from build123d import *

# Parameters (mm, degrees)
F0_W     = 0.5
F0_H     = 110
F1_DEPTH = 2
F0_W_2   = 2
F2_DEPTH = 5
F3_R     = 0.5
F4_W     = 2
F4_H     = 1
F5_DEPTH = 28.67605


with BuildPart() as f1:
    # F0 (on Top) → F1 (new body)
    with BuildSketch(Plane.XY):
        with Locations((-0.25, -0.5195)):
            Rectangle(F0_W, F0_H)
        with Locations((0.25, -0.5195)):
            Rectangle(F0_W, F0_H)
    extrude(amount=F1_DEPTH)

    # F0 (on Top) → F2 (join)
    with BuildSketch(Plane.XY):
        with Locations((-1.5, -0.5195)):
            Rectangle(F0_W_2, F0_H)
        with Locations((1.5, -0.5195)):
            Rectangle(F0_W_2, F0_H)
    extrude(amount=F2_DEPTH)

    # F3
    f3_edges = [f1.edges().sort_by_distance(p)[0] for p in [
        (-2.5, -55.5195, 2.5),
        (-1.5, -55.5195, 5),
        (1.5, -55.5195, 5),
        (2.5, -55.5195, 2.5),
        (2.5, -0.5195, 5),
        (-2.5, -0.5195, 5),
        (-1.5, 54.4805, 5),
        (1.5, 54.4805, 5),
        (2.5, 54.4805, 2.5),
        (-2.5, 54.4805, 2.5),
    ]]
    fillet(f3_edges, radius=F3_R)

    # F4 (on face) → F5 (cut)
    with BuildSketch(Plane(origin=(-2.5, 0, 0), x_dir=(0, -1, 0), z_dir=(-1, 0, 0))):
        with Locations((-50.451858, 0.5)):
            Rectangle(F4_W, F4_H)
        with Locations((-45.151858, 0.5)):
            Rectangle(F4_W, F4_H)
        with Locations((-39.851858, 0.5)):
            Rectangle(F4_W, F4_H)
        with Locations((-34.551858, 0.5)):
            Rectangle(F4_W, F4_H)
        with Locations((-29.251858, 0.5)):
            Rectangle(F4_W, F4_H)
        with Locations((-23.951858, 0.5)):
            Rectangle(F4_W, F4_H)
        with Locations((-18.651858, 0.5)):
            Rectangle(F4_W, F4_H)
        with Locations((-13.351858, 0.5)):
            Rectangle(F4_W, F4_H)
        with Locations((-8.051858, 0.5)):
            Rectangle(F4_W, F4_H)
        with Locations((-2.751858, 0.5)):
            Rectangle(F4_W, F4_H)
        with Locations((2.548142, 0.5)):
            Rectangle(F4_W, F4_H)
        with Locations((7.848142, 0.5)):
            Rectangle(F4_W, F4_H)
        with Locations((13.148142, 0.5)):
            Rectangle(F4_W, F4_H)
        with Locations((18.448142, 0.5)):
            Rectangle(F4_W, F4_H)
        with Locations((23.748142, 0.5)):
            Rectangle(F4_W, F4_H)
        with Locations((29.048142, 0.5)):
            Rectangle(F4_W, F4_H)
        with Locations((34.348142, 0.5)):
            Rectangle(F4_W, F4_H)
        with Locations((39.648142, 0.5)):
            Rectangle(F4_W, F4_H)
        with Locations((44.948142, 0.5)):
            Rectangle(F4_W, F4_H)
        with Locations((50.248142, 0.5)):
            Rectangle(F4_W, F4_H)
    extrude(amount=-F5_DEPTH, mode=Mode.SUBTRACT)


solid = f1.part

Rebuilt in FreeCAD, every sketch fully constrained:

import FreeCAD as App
import Part
import Sketcher
from FreeCAD import Vector


def edges_at(feature, points):
    """Names of the edges that pass closest to the given points."""
    edges = feature.Shape.Edges
    near = lambda p: min(range(len(edges)), key=lambda i: edges[i].distToShape(Part.Vertex(*p))[0])
    return sorted({f"Edge{near(p) + 1}" for p in points})

doc = App.newDocument("Part")
body = doc.addObject("PartDesign::Body", "Body")

# Sketch on XY plane
sketch1 = doc.addObject("Sketcher::SketchObject", "Sketch")
body.addObject(sketch1)
sketch1.AttachmentSupport = (doc.XY_Plane, [""])
sketch1.MapMode = "FlatFace"
sketch1.addGeometry([
    Part.LineSegment(Vector(-0.5, 54.5, 0), Vector(-0.5, -55.5, 0)),
    Part.LineSegment(Vector(-0.5, -55.5, 0), Vector(0.5, -55.5, 0)),
    Part.LineSegment(Vector(0.5, -55.5, 0), Vector(0.5, 54.5, 0)),
    Part.LineSegment(Vector(0.5, 54.5, 0), Vector(-0.5, 54.5, 0)),
], False)
sketch1.addConstraint([
    Sketcher.Constraint("Coincident", 0, 2, 1, 1),
    Sketcher.Constraint("Coincident", 1, 2, 2, 1),
    Sketcher.Constraint("Coincident", 2, 2, 3, 1),
    Sketcher.Constraint("Coincident", 3, 2, 0, 1),
    Sketcher.Constraint("Vertical", 0),
    Sketcher.Constraint("Horizontal", 1),
    Sketcher.Constraint("Vertical", 2),
    Sketcher.Constraint("Horizontal", 3),
    Sketcher.Constraint("DistanceX", 1, 1, 1, 2, 1.0),
    Sketcher.Constraint("DistanceY", 0, 2, 0, 1, 110.0),
    Sketcher.Constraint("DistanceX", 0, 2, -1, 1, 0.5),
    Sketcher.Constraint("DistanceY", 0, 2, -1, 1, 55.5195),
])
pad1 = doc.addObject("PartDesign::Pad", "Pad")
body.addObject(pad1)
pad1.Profile = sketch1
pad1.Length = 2

# Sketch on XY plane
sketch2 = doc.addObject("Sketcher::SketchObject", "Sketch001")
body.addObject(sketch2)
sketch2.AttachmentSupport = (doc.XY_Plane, [""])
sketch2.MapMode = "FlatFace"
sketch2.addGeometry([
    Part.LineSegment(Vector(-2.5, 54.5, 0), Vector(-2.5, -55.5, 0)),  # 0
    Part.LineSegment(Vector(-2.5, -55.5, 0), Vector(-0.5, -55.5, 0)),  # 1
    Part.LineSegment(Vector(-0.5, -55.5, 0), Vector(-0.5, 54.5, 0)),  # 2
    Part.LineSegment(Vector(-0.5, 54.5, 0), Vector(-2.5, 54.5, 0)),  # 3
    Part.LineSegment(Vector(0.5, 54.5, 0), Vector(0.5, -55.5, 0)),  # 4
    Part.LineSegment(Vector(0.5, -55.5, 0), Vector(2.5, -55.5, 0)),  # 5
    Part.LineSegment(Vector(2.5, -55.5, 0), Vector(2.5, 54.5, 0)),  # 6
    Part.LineSegment(Vector(2.5, 54.5, 0), Vector(0.5, 54.5, 0)),  # 7
], False)
sketch2.addConstraint([
    Sketcher.Constraint("Coincident", 0, 2, 1, 1),
    Sketcher.Constraint("Coincident", 1, 2, 2, 1),
    Sketcher.Constraint("Coincident", 2, 2, 3, 1),
    Sketcher.Constraint("Coincident", 3, 2, 0, 1),
    Sketcher.Constraint("Coincident", 4, 2, 5, 1),
    Sketcher.Constraint("Coincident", 5, 2, 6, 1),
    Sketcher.Constraint("Coincident", 6, 2, 7, 1),
    Sketcher.Constraint("Coincident", 7, 2, 4, 1),
    Sketcher.Constraint("Vertical", 0),
    Sketcher.Constraint("Horizontal", 1),
    Sketcher.Constraint("Vertical", 2),
    Sketcher.Constraint("Horizontal", 3),
    Sketcher.Constraint("Vertical", 4),
    Sketcher.Constraint("Horizontal", 5),
    Sketcher.Constraint("Vertical", 6),
    Sketcher.Constraint("Horizontal", 7),
    Sketcher.Constraint("Symmetric", 1, 2, 4, 2, -2),
    Sketcher.Constraint("Symmetric", 3, 2, 6, 2, -2),
    Sketcher.Constraint("DistanceX", 1, 1, 1, 2, 2.0),
    Sketcher.Constraint("DistanceY", 0, 2, 0, 1, 110.0),
    Sketcher.Constraint("DistanceX", 1, 2, 4, 2, 1.0),
    Sketcher.Constraint("DistanceY", 0, 2, -1, 1, 55.5195),
])
pad2 = doc.addObject("PartDesign::Pad", "Pad001")
body.addObject(pad2)
pad2.Profile = sketch2
pad2.Length = 5
doc.recompute()

fillet = doc.addObject("PartDesign::Fillet", "Fillet")
body.addObject(fillet)
fillet.Base = (pad2, edges_at(pad2, [
    (-2.5, -55.52, 2.5),
    (-1.5, -55.52, 5),
    (1.5, -55.52, 5),
    (2.5, -55.52, 2.5),
    (2.5, -0.519, 5),
    (-2.5, -0.519, 5),
    (-1.5, 54.48, 5),
    (1.5, 54.48, 5),
    (2.5, 54.48, 2.5),
    (-2.5, 54.48, 2.5),
]))
fillet.Radius = 0.5

# Sketch on YZ plane
sketch3 = doc.addObject("Sketcher::SketchObject", "Sketch002")
body.addObject(sketch3)
sketch3.AttachmentSupport = (doc.YZ_Plane, [""])
sketch3.MapMode = "FlatFace"
sketch3.AttachmentOffset = App.Placement(Vector(0, 0, -2.5), App.Rotation())
sketch3.addGeometry([
    Part.LineSegment(Vector(51.5, 1, 0), Vector(51.5, 0, 0)),  # 0
    Part.LineSegment(Vector(51.5, 0, 0), Vector(49.5, 0, 0)),  # 1
    Part.LineSegment(Vector(49.5, 0, 0), Vector(49.5, 1, 0)),  # 2
    Part.LineSegment(Vector(49.5, 1, 0), Vector(51.5, 1, 0)),  # 3
    Part.LineSegment(Vector(46.2, 1, 0), Vector(46.2, 0, 0)),  # 4
    Part.LineSegment(Vector(46.2, 0, 0), Vector(44.2, 0, 0)),  # 5
    Part.LineSegment(Vector(44.2, 0, 0), Vector(44.2, 1, 0)),  # 6
    Part.LineSegment(Vector(44.2, 1, 0), Vector(46.2, 1, 0)),  # 7
    Part.LineSegment(Vector(40.9, 1, 0), Vector(40.9, 0, 0)),  # 8
    Part.LineSegment(Vector(40.9, 0, 0), Vector(38.9, 0, 0)),  # 9
    Part.LineSegment(Vector(38.9, 0, 0), Vector(38.9, 1, 0)),  # 10
    Part.LineSegment(Vector(38.9, 1, 0), Vector(40.9, 1, 0)),  # 11
    Part.LineSegment(Vector(35.6, 1, 0), Vector(35.6, 0, 0)),  # 12
    Part.LineSegment(Vector(35.6, 0, 0), Vector(33.6, 0, 0)),  # 13
    Part.LineSegment(Vector(33.6, 0, 0), Vector(33.6, 1, 0)),  # 14
    Part.LineSegment(Vector(33.6, 1, 0), Vector(35.6, 1, 0)),  # 15
    Part.LineSegment(Vector(30.3, 1, 0), Vector(30.3, 0, 0)),  # 16
    Part.LineSegment(Vector(30.3, 0, 0), Vector(28.3, 0, 0)),  # 17
    Part.LineSegment(Vector(28.3, 0, 0), Vector(28.3, 1, 0)),  # 18
    Part.LineSegment(Vector(28.3, 1, 0), Vector(30.3, 1, 0)),  # 19
    Part.LineSegment(Vector(25, 1, 0), Vector(25, 0, 0)),  # 20
    Part.LineSegment(Vector(25, 0, 0), Vector(23, 0, 0)),  # 21
    Part.LineSegment(Vector(23, 0, 0), Vector(23, 1, 0)),  # 22
    Part.LineSegment(Vector(23, 1, 0), Vector(25, 1, 0)),  # 23
    Part.LineSegment(Vector(19.7, 1, 0), Vector(19.7, 0, 0)),  # 24
    Part.LineSegment(Vector(19.7, 0, 0), Vector(17.7, 0, 0)),  # 25
    Part.LineSegment(Vector(17.7, 0, 0), Vector(17.7, 1, 0)),  # 26
    Part.LineSegment(Vector(17.7, 1, 0), Vector(19.7, 1, 0)),  # 27
    Part.LineSegment(Vector(14.4, 1, 0), Vector(14.4, 0, 0)),  # 28
    Part.LineSegment(Vector(14.4, 0, 0), Vector(12.4, 0, 0)),  # 29
    Part.LineSegment(Vector(12.4, 0, 0), Vector(12.4, 1, 0)),  # 30
    Part.LineSegment(Vector(12.4, 1, 0), Vector(14.4, 1, 0)),  # 31
    Part.LineSegment(Vector(9.1, 1, 0), Vector(9.1, 0, 0)),  # 32
    Part.LineSegment(Vector(9.1, 0, 0), Vector(7.1, 0, 0)),  # 33
    Part.LineSegment(Vector(7.1, 0, 0), Vector(7.1, 1, 0)),  # 34
    Part.LineSegment(Vector(7.1, 1, 0), Vector(9.1, 1, 0)),  # 35
    Part.LineSegment(Vector(3.8, 1, 0), Vector(3.8, 0, 0)),  # 36
    Part.LineSegment(Vector(3.8, 0, 0), Vector(1.8, 0, 0)),  # 37
    Part.LineSegment(Vector(1.8, 0, 0), Vector(1.8, 1, 0)),  # 38
    Part.LineSegment(Vector(1.8, 1, 0), Vector(3.8, 1, 0)),  # 39
    Part.LineSegment(Vector(-1.5, 1, 0), Vector(-1.5, 0, 0)),  # 40
    Part.LineSegment(Vector(-1.5, 0, 0), Vector(-3.5, 0, 0)),  # 41
    Part.LineSegment(Vector(-3.5, 0, 0), Vector(-3.5, 1, 0)),  # 42
    Part.LineSegment(Vector(-3.5, 1, 0), Vector(-1.5, 1, 0)),  # 43
    Part.LineSegment(Vector(-6.8, 1, 0), Vector(-6.8, 0, 0)),  # 44
    Part.LineSegment(Vector(-6.8, 0, 0), Vector(-8.8, 0, 0)),  # 45
    Part.LineSegment(Vector(-8.8, 0, 0), Vector(-8.8, 1, 0)),  # 46
    Part.LineSegment(Vector(-8.8, 1, 0), Vector(-6.8, 1, 0)),  # 47
    Part.LineSegment(Vector(-12.1, 1, 0), Vector(-12.1, 0, 0)),  # 48
    Part.LineSegment(Vector(-12.1, 0, 0), Vector(-14.1, 0, 0)),  # 49
    Part.LineSegment(Vector(-14.1, 0, 0), Vector(-14.1, 1, 0)),  # 50
    Part.LineSegment(Vector(-14.1, 1, 0), Vector(-12.1, 1, 0)),  # 51
    Part.LineSegment(Vector(-17.4, 1, 0), Vector(-17.4, 0, 0)),  # 52
    Part.LineSegment(Vector(-17.4, 0, 0), Vector(-19.4, 0, 0)),  # 53
    Part.LineSegment(Vector(-19.4, 0, 0), Vector(-19.4, 1, 0)),  # 54
    Part.LineSegment(Vector(-19.4, 1, 0), Vector(-17.4, 1, 0)),  # 55
    Part.LineSegment(Vector(-22.7, 1, 0), Vector(-22.7, 0, 0)),  # 56
    Part.LineSegment(Vector(-22.7, 0, 0), Vector(-24.7, 0, 0)),  # 57
    Part.LineSegment(Vector(-24.7, 0, 0), Vector(-24.7, 1, 0)),  # 58
    Part.LineSegment(Vector(-24.7, 1, 0), Vector(-22.7, 1, 0)),  # 59
    Part.LineSegment(Vector(-28, 1, 0), Vector(-28, 0, 0)),  # 60
    Part.LineSegment(Vector(-28, 0, 0), Vector(-30, 0, 0)),  # 61
    Part.LineSegment(Vector(-30, 0, 0), Vector(-30, 1, 0)),  # 62
    Part.LineSegment(Vector(-30, 1, 0), Vector(-28, 1, 0)),  # 63
    Part.LineSegment(Vector(-33.3, 1, 0), Vector(-33.3, 0, 0)),  # 64
    Part.LineSegment(Vector(-33.3, 0, 0), Vector(-35.3, 0, 0)),  # 65
    Part.LineSegment(Vector(-35.3, 0, 0), Vector(-35.3, 1, 0)),  # 66
    Part.LineSegment(Vector(-35.3, 1, 0), Vector(-33.3, 1, 0)),  # 67
    Part.LineSegment(Vector(-38.6, 1, 0), Vector(-38.6, 0, 0)),  # 68
    Part.LineSegment(Vector(-38.6, 0, 0), Vector(-40.6, 0, 0)),  # 69
    Part.LineSegment(Vector(-40.6, 0, 0), Vector(-40.6, 1, 0)),  # 70
    Part.LineSegment(Vector(-40.6, 1, 0), Vector(-38.6, 1, 0)),  # 71
    Part.LineSegment(Vector(-43.9, 1, 0), Vector(-43.9, 0, 0)),  # 72
    Part.LineSegment(Vector(-43.9, 0, 0), Vector(-45.9, 0, 0)),  # 73
    Part.LineSegment(Vector(-45.9, 0, 0), Vector(-45.9, 1, 0)),  # 74
    Part.LineSegment(Vector(-45.9, 1, 0), Vector(-43.9, 1, 0)),  # 75
    Part.LineSegment(Vector(-49.2, 1, 0), Vector(-49.2, 0, 0)),  # 76
    Part.LineSegment(Vector(-49.2, 0, 0), Vector(-51.2, 0, 0)),  # 77
    Part.LineSegment(Vector(-51.2, 0, 0), Vector(-51.2, 1, 0)),  # 78
    Part.LineSegment(Vector(-51.2, 1, 0), Vector(-49.2, 1, 0)),  # 79
], False)
sketch3.addConstraint([
    Sketcher.Constraint("Coincident", 0, 2, 1, 1),
    Sketcher.Constraint("Coincident", 1, 2, 2, 1),
    Sketcher.Constraint("Coincident", 2, 2, 3, 1),
    Sketcher.Constraint("Coincident", 3, 2, 0, 1),
    Sketcher.Constraint("Coincident", 4, 2, 5, 1),
    Sketcher.Constraint("Coincident", 5, 2, 6, 1),
    Sketcher.Constraint("Coincident", 6, 2, 7, 1),
    Sketcher.Constraint("Coincident", 7, 2, 4, 1),
    Sketcher.Constraint("Coincident", 8, 2, 9, 1),
    Sketcher.Constraint("Coincident", 9, 2, 10, 1),
    Sketcher.Constraint("Coincident", 10, 2, 11, 1),
    Sketcher.Constraint("Coincident", 11, 2, 8, 1),
    Sketcher.Constraint("Coincident", 12, 2, 13, 1),
    Sketcher.Constraint("Coincident", 13, 2, 14, 1),
    Sketcher.Constraint("Coincident", 14, 2, 15, 1),
    Sketcher.Constraint("Coincident", 15, 2, 12, 1),
    Sketcher.Constraint("Coincident", 16, 2, 17, 1),
    Sketcher.Constraint("Coincident", 17, 2, 18, 1),
    Sketcher.Constraint("Coincident", 18, 2, 19, 1),
    Sketcher.Constraint("Coincident", 19, 2, 16, 1),
    Sketcher.Constraint("Coincident", 20, 2, 21, 1),
    Sketcher.Constraint("Coincident", 21, 2, 22, 1),
    Sketcher.Constraint("Coincident", 22, 2, 23, 1),
    Sketcher.Constraint("Coincident", 23, 2, 20, 1),
    Sketcher.Constraint("Coincident", 24, 2, 25, 1),
    Sketcher.Constraint("Coincident", 25, 2, 26, 1),
    Sketcher.Constraint("Coincident", 26, 2, 27, 1),
    Sketcher.Constraint("Coincident", 27, 2, 24, 1),
    Sketcher.Constraint("Coincident", 28, 2, 29, 1),
    Sketcher.Constraint("Coincident", 29, 2, 30, 1),
    Sketcher.Constraint("Coincident", 30, 2, 31, 1),
    Sketcher.Constraint("Coincident", 31, 2, 28, 1),
    Sketcher.Constraint("Coincident", 32, 2, 33, 1),
    Sketcher.Constraint("Coincident", 33, 2, 34, 1),
    Sketcher.Constraint("Coincident", 34, 2, 35, 1),
    Sketcher.Constraint("Coincident", 35, 2, 32, 1),
    Sketcher.Constraint("Coincident", 36, 2, 37, 1),
    Sketcher.Constraint("Coincident", 37, 2, 38, 1),
    Sketcher.Constraint("Coincident", 38, 2, 39, 1),
    Sketcher.Constraint("Coincident", 39, 2, 36, 1),
    Sketcher.Constraint("Coincident", 40, 2, 41, 1),
    Sketcher.Constraint("Coincident", 41, 2, 42, 1),
    Sketcher.Constraint("Coincident", 42, 2, 43, 1),
    Sketcher.Constraint("Coincident", 43, 2, 40, 1),
    Sketcher.Constraint("Coincident", 44, 2, 45, 1),
    Sketcher.Constraint("Coincident", 45, 2, 46, 1),
    Sketcher.Constraint("Coincident", 46, 2, 47, 1),
    Sketcher.Constraint("Coincident", 47, 2, 44, 1),
    Sketcher.Constraint("Coincident", 48, 2, 49, 1),
    Sketcher.Constraint("Coincident", 49, 2, 50, 1),
    Sketcher.Constraint("Coincident", 50, 2, 51, 1),
    Sketcher.Constraint("Coincident", 51, 2, 48, 1),
    Sketcher.Constraint("Coincident", 52, 2, 53, 1),
    Sketcher.Constraint("Coincident", 53, 2, 54, 1),
    Sketcher.Constraint("Coincident", 54, 2, 55, 1),
    Sketcher.Constraint("Coincident", 55, 2, 52, 1),
    Sketcher.Constraint("Coincident", 56, 2, 57, 1),
    Sketcher.Constraint("Coincident", 57, 2, 58, 1),
    Sketcher.Constraint("Coincident", 58, 2, 59, 1),
    Sketcher.Constraint("Coincident", 59, 2, 56, 1),
    Sketcher.Constraint("Coincident", 60, 2, 61, 1),
    Sketcher.Constraint("Coincident", 61, 2, 62, 1),
    Sketcher.Constraint("Coincident", 62, 2, 63, 1),
    Sketcher.Constraint("Coincident", 63, 2, 60, 1),
    Sketcher.Constraint("Coincident", 64, 2, 65, 1),
    Sketcher.Constraint("Coincident", 65, 2, 66, 1),
    Sketcher.Constraint("Coincident", 66, 2, 67, 1),
    Sketcher.Constraint("Coincident", 67, 2, 64, 1),
    Sketcher.Constraint("Coincident", 68, 2, 69, 1),
    Sketcher.Constraint("Coincident", 69, 2, 70, 1),
    Sketcher.Constraint("Coincident", 70, 2, 71, 1),
    Sketcher.Constraint("Coincident", 71, 2, 68, 1),
    Sketcher.Constraint("Coincident", 72, 2, 73, 1),
    Sketcher.Constraint("Coincident", 73, 2, 74, 1),
    Sketcher.Constraint("Coincident", 74, 2, 75, 1),
    Sketcher.Constraint("Coincident", 75, 2, 72, 1),
    Sketcher.Constraint("Coincident", 76, 2, 77, 1),
    Sketcher.Constraint("Coincident", 77, 2, 78, 1),
    Sketcher.Constraint("Coincident", 78, 2, 79, 1),
    Sketcher.Constraint("Coincident", 79, 2, 76, 1),
    Sketcher.Constraint("Vertical", 0),
    Sketcher.Constraint("Horizontal", 1),
    Sketcher.Constraint("Vertical", 2),
    Sketcher.Constraint("Horizontal", 3),
    Sketcher.Constraint("Vertical", 4),
    Sketcher.Constraint("Horizontal", 5),
    Sketcher.Constraint("Vertical", 6),
    Sketcher.Constraint("Horizontal", 7),
    Sketcher.Constraint("Vertical", 8),
    Sketcher.Constraint("Horizontal", 9),
    Sketcher.Constraint("Vertical", 10),
    Sketcher.Constraint("Horizontal", 11),
    Sketcher.Constraint("Vertical", 12),
    Sketcher.Constraint("Horizontal", 13),
    Sketcher.Constraint("Vertical", 14),
    Sketcher.Constraint("Horizontal", 15),
    Sketcher.Constraint("Vertical", 16),
    Sketcher.Constraint("Horizontal", 17),
    Sketcher.Constraint("Vertical", 18),
    Sketcher.Constraint("Horizontal", 19),
    Sketcher.Constraint("Vertical", 20),
    Sketcher.Constraint("Horizontal", 21),
    Sketcher.Constraint("Vertical", 22),
    Sketcher.Constraint("Horizontal", 23),
    Sketcher.Constraint("Vertical", 24),
    Sketcher.Constraint("Horizontal", 25),
    Sketcher.Constraint("Vertical", 26),
    Sketcher.Constraint("Horizontal", 27),
    Sketcher.Constraint("Vertical", 28),
    Sketcher.Constraint("Horizontal", 29),
    Sketcher.Constraint("Vertical", 30),
    Sketcher.Constraint("Horizontal", 31),
    Sketcher.Constraint("Vertical", 32),
    Sketcher.Constraint("Horizontal", 33),
    Sketcher.Constraint("Vertical", 34),
    Sketcher.Constraint("Horizontal", 35),
    Sketcher.Constraint("Vertical", 36),
    Sketcher.Constraint("Horizontal", 37),
    Sketcher.Constraint("Vertical", 38),
    Sketcher.Constraint("Horizontal", 39),
    Sketcher.Constraint("Vertical", 40),
    Sketcher.Constraint("Horizontal", 41),
    Sketcher.Constraint("Vertical", 42),
    Sketcher.Constraint("Horizontal", 43),
    Sketcher.Constraint("Vertical", 44),
    Sketcher.Constraint("Horizontal", 45),
    Sketcher.Constraint("Vertical", 46),
    Sketcher.Constraint("Horizontal", 47),
    Sketcher.Constraint("Vertical", 48),
    Sketcher.Constraint("Horizontal", 49),
    Sketcher.Constraint("Vertical", 50),
    Sketcher.Constraint("Horizontal", 51),
    Sketcher.Constraint("Vertical", 52),
    Sketcher.Constraint("Horizontal", 53),
    Sketcher.Constraint("Vertical", 54),
    Sketcher.Constraint("Horizontal", 55),
    Sketcher.Constraint("Vertical", 56),
    Sketcher.Constraint("Horizontal", 57),
    Sketcher.Constraint("Vertical", 58),
    Sketcher.Constraint("Horizontal", 59),
    Sketcher.Constraint("Vertical", 60),
    Sketcher.Constraint("Horizontal", 61),
    Sketcher.Constraint("Vertical", 62),
    Sketcher.Constraint("Horizontal", 63),
    Sketcher.Constraint("Vertical", 64),
    Sketcher.Constraint("Horizontal", 65),
    Sketcher.Constraint("Vertical", 66),
    Sketcher.Constraint("Horizontal", 67),
    Sketcher.Constraint("Vertical", 68),
    Sketcher.Constraint("Horizontal", 69),
    Sketcher.Constraint("Vertical", 70),
    Sketcher.Constraint("Horizontal", 71),
    Sketcher.Constraint("Vertical", 72),
    Sketcher.Constraint("Horizontal", 73),
    Sketcher.Constraint("Vertical", 74),
    Sketcher.Constraint("Horizontal", 75),
    Sketcher.Constraint("Vertical", 76),
    Sketcher.Constraint("Horizontal", 77),
    Sketcher.Constraint("Vertical", 78),
    Sketcher.Constraint("Horizontal", 79),
    Sketcher.Constraint("PointOnObject", 0, 2, -1),
    Sketcher.Constraint("PointOnObject", 4, 2, -1),
    Sketcher.Constraint("PointOnObject", 8, 2, -1),
    Sketcher.Constraint("PointOnObject", 12, 2, -1),
    Sketcher.Constraint("PointOnObject", 16, 2, -1),
    Sketcher.Constraint("PointOnObject", 20, 2, -1),
    Sketcher.Constraint("PointOnObject", 24, 2, -1),
    Sketcher.Constraint("PointOnObject", 28, 2, -1),
    Sketcher.Constraint("PointOnObject", 32, 2, -1),
    Sketcher.Constraint("PointOnObject", 36, 2, -1),
    Sketcher.Constraint("PointOnObject", 40, 2, -1),
    Sketcher.Constraint("PointOnObject", 44, 2, -1),
    Sketcher.Constraint("PointOnObject", 48, 2, -1),
    Sketcher.Constraint("PointOnObject", 52, 2, -1),
    Sketcher.Constraint("PointOnObject", 56, 2, -1),
    Sketcher.Constraint("PointOnObject", 60, 2, -1),
    Sketcher.Constraint("PointOnObject", 64, 2, -1),
    Sketcher.Constraint("PointOnObject", 68, 2, -1),
    Sketcher.Constraint("PointOnObject", 72, 2, -1),
    Sketcher.Constraint("PointOnObject", 76, 2, -1),
    Sketcher.Constraint("Horizontal", 3, 2, 6, 2),
    Sketcher.Constraint("Horizontal", 7, 2, 10, 2),
    Sketcher.Constraint("Horizontal", 11, 2, 14, 2),
    Sketcher.Constraint("Horizontal", 15, 2, 18, 2),
    Sketcher.Constraint("Horizontal", 19, 2, 22, 2),
    Sketcher.Constraint("Horizontal", 23, 2, 26, 2),
    Sketcher.Constraint("Horizontal", 27, 2, 30, 2),
    Sketcher.Constraint("Horizontal", 31, 2, 34, 2),
    Sketcher.Constraint("Horizontal", 35, 2, 38, 2),
    Sketcher.Constraint("Horizontal", 39, 2, 42, 2),
    Sketcher.Constraint("Horizontal", 43, 2, 46, 2),
    Sketcher.Constraint("Horizontal", 47, 2, 50, 2),
    Sketcher.Constraint("Horizontal", 51, 2, 54, 2),
    Sketcher.Constraint("Horizontal", 55, 2, 58, 2),
    Sketcher.Constraint("Horizontal", 59, 2, 62, 2),
    Sketcher.Constraint("Horizontal", 63, 2, 66, 2),
    Sketcher.Constraint("Horizontal", 67, 2, 70, 2),
    Sketcher.Constraint("Horizontal", 71, 2, 74, 2),
    Sketcher.Constraint("Horizontal", 75, 2, 78, 2),
    Sketcher.Constraint("Equal", 3, 5),
    Sketcher.Constraint("Equal", 7, 9),
    Sketcher.Constraint("Equal", 11, 13),
    Sketcher.Constraint("Equal", 15, 17),
    Sketcher.Constraint("Equal", 19, 21),
    Sketcher.Constraint("Equal", 23, 25),
    Sketcher.Constraint("Equal", 27, 29),
    Sketcher.Constraint("Equal", 31, 33),
    Sketcher.Constraint("Equal", 35, 37),
    Sketcher.Constraint("Equal", 39, 41),
    Sketcher.Constraint("Equal", 43, 45),
    Sketcher.Constraint("Equal", 47, 49),
    Sketcher.Constraint("Equal", 51, 53),
    Sketcher.Constraint("Equal", 55, 57),
    Sketcher.Constraint("Equal", 59, 61),
    Sketcher.Constraint("Equal", 63, 65),
    Sketcher.Constraint("Equal", 67, 69),
    Sketcher.Constraint("Equal", 71, 73),
    Sketcher.Constraint("Equal", 75, 77),
    Sketcher.Constraint("DistanceX", 1, 2, 1, 1, 2.0),
    Sketcher.Constraint("DistanceY", 0, 2, 0, 1, 1.0),
    Sketcher.Constraint("DistanceX", -1, 1, 12, 2, 35.551858),
    Sketcher.Constraint("DistanceX", -1, 1, 20, 2, 24.951858),
    Sketcher.Constraint("DistanceX", -1, 1, 24, 2, 19.651858),
    Sketcher.Constraint("DistanceX", -1, 1, 33, 2, 7.051858),
    Sketcher.Constraint("DistanceX", 40, 2, -1, 1, 1.548142),
    Sketcher.Constraint("DistanceX", 45, 2, -1, 1, 8.848142),
    Sketcher.Constraint("DistanceX", 60, 2, -1, 1, 28.048142),
    Sketcher.Constraint("DistanceX", 72, 2, -1, 1, 43.948142),
    Sketcher.Constraint("DistanceX", -1, 1, 0, 2, 51.451858),
    Sketcher.Constraint("DistanceX", -1, 1, 4, 2, 46.151858),
    Sketcher.Constraint("DistanceX", -1, 1, 8, 2, 40.851858),
    Sketcher.Constraint("DistanceX", -1, 1, 16, 2, 30.251858),
    Sketcher.Constraint("DistanceX", -1, 1, 28, 2, 14.351858),
    Sketcher.Constraint("DistanceX", -1, 1, 36, 2, 3.751858),
    Sketcher.Constraint("DistanceX", 48, 2, -1, 1, 12.148142),
    Sketcher.Constraint("DistanceX", 52, 2, -1, 1, 17.448142),
    Sketcher.Constraint("DistanceX", 56, 2, -1, 1, 22.748142),
    Sketcher.Constraint("DistanceX", 64, 2, -1, 1, 33.348142),
    Sketcher.Constraint("DistanceX", 68, 2, -1, 1, 38.648142),
    Sketcher.Constraint("DistanceX", 76, 2, -1, 1, 49.248142),
])
pocket1 = doc.addObject("PartDesign::Pocket", "Pocket")
body.addObject(pocket1)
pocket1.Profile = sketch3
pocket1.Length = 28.67605
pocket1.Reversed = True

doc.recompute()
